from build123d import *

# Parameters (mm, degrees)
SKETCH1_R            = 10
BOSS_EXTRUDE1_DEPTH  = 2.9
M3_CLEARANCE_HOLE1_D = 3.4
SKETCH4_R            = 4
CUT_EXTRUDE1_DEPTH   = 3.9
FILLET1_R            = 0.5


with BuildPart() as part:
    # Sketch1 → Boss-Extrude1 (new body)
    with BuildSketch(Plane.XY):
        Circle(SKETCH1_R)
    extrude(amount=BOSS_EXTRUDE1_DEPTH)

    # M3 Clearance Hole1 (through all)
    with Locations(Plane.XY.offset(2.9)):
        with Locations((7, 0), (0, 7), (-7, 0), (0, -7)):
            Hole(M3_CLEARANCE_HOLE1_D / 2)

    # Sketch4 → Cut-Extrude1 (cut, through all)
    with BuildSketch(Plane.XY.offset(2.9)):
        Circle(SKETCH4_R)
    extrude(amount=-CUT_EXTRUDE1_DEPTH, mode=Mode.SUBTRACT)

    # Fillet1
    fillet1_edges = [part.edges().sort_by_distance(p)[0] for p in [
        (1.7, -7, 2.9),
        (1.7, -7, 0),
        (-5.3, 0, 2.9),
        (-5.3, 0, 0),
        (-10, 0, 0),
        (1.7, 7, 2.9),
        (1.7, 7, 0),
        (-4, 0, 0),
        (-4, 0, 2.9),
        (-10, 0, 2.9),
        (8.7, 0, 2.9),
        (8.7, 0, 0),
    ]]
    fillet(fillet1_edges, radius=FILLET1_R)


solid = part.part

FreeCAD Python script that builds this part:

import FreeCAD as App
import Part
import Sketcher


def edges_at(feature, points):
    """Names of the edges that pass closest to the given points."""
    edges = feature.Shape.Edges
    near = lambda p: min(range(len(edges)), key=lambda i: edges[i].distToShape(Part.Vertex(*p))[0])
    return sorted({f"Edge{near(p) + 1}" for p in points})

doc = App.newDocument("Part")
params = doc.addObject("Spreadsheet::Sheet", "Params")
for row, (alias, value) in enumerate([
    ("sketch1_diameter", "20 mm"),
    ("pad1_length", "2.9 mm"),
    ("sketch2_diameter", "3.4 mm"),
    ("hole_diameter", "3.4 mm"),
    ("sketch3_diameter", "8 mm"),
    ("fillet_radius", "0.5 mm"),
], start=1):
    params.set(f"A{row}", alias)
    params.set(f"B{row}", "=" + value)
    params.setAlias(f"B{row}", alias)

body = doc.addObject("PartDesign::Body", "Body")

# Sketch on XY plane
sketch1 = body.newObject("Sketcher::SketchObject", "Sketch")
sketch1.AttachmentSupport = (doc.getObject("XY_Plane"), [""])
sketch1.MapMode = "FlatFace"
sketch1.addGeometry(Part.Circle(App.Vector(0, 0, 0), App.Vector(0, 0, 1), 10), False)
sketch1.addConstraint([
    Sketcher.Constraint("Coincident", 0, 3, -1, 1),
    Sketcher.Constraint("Diameter", 0, 20.0),
])
sketch1.setExpression("Constraints[1]", "Params.sketch1_diameter")
pad1 = body.newObject("PartDesign::Pad", "Pad")
pad1.Profile = sketch1
pad1.setExpression("Length", "Params.pad1_length")

# Sketch on XY plane
sketch2 = body.newObject("Sketcher::SketchObject", "Sketch001")
sketch2.AttachmentSupport = (doc.getObject("XY_Plane"), [""])
sketch2.MapMode = "FlatFace"
sketch2.AttachmentOffset = App.Placement(App.Vector(0, 0, 2.9), App.Rotation())
sketch2.addGeometry([
    Part.Circle(App.Vector(7, 0, 0), App.Vector(0, 0, 1), 1.7),
    Part.Circle(App.Vector(0, 7, 0), App.Vector(0, 0, 1), 1.7),
    Part.Circle(App.Vector(-7, 0, 0), App.Vector(0, 0, 1), 1.7),
    Part.Circle(App.Vector(0, -7, 0), App.Vector(0, 0, 1), 1.7),
], False)
sketch2.addConstraint([
    Sketcher.Constraint("Equal", 0, 1),
    Sketcher.Constraint("Equal", 1, 2),
    Sketcher.Constraint("Equal", 2, 3),
    Sketcher.Constraint("Symmetric", 0, 3, 2, 3, -1, 1),
    Sketcher.Constraint("Symmetric", 1, 3, 3, 3, -1, 1),
    Sketcher.Constraint("PointOnObject", 0, 3, -1),
    Sketcher.Constraint("PointOnObject", 1, 3, -2),
    Sketcher.Constraint("Diameter", 0, 3.4),
    Sketcher.Constraint("DistanceX", -1, 1, 0, 3, 7.0),
    Sketcher.Constraint("DistanceY", -1, 1, 1, 3, 7.0),
])
sketch2.setExpression("Constraints[7]", "Params.sketch2_diameter")
doc.recompute()
hole = body.newObject("PartDesign::Hole", "Hole")
hole.Profile = sketch2
hole.ThreadType = "None"
hole.setExpression("Diameter", "Params.hole_diameter")
hole.DepthType = "ThroughAll"

# Sketch on XY plane
sketch3 = body.newObject("Sketcher::SketchObject", "Sketch002")
sketch3.AttachmentSupport = (doc.getObject("XY_Plane"), [""])
sketch3.MapMode = "FlatFace"
sketch3.AttachmentOffset = App.Placement(App.Vector(0, 0, 2.9), App.Rotation())
sketch3.addGeometry(Part.Circle(App.Vector(0, 0, 0), App.Vector(0, 0, 1), 4), False)
sketch3.addConstraint([
    Sketcher.Constraint("Coincident", 0, 3, -1, 1),
    Sketcher.Constraint("Diameter", 0, 8.0),
])
sketch3.setExpression("Constraints[1]", "Params.sketch3_diameter")
pocket1 = body.newObject("PartDesign::Pocket", "Pocket")
pocket1.Profile = sketch3
pocket1.Type = "ThroughAll"
doc.recompute()

fillet = body.newObject("PartDesign::Fillet", "Fillet")
fillet.Base = (pocket1, edges_at(pocket1, [
    (1.7, -7, 2.9),
    (1.7, -7, 0),
    (-5.3, 0, 2.9),
    (-5.3, 0, 0),
    (-10, 0, 0),
    (1.7, 7, 2.9),
    (1.7, 7, 0),
    (-4, 0, 0),
    (-4, 0, 2.9),
    (-10, 0, 2.9),
    (8.7, 0, 2.9),
    (8.7, 0, 0),
]))
fillet.setExpression("Radius", "Params.fillet_radius")

doc.recompute()
